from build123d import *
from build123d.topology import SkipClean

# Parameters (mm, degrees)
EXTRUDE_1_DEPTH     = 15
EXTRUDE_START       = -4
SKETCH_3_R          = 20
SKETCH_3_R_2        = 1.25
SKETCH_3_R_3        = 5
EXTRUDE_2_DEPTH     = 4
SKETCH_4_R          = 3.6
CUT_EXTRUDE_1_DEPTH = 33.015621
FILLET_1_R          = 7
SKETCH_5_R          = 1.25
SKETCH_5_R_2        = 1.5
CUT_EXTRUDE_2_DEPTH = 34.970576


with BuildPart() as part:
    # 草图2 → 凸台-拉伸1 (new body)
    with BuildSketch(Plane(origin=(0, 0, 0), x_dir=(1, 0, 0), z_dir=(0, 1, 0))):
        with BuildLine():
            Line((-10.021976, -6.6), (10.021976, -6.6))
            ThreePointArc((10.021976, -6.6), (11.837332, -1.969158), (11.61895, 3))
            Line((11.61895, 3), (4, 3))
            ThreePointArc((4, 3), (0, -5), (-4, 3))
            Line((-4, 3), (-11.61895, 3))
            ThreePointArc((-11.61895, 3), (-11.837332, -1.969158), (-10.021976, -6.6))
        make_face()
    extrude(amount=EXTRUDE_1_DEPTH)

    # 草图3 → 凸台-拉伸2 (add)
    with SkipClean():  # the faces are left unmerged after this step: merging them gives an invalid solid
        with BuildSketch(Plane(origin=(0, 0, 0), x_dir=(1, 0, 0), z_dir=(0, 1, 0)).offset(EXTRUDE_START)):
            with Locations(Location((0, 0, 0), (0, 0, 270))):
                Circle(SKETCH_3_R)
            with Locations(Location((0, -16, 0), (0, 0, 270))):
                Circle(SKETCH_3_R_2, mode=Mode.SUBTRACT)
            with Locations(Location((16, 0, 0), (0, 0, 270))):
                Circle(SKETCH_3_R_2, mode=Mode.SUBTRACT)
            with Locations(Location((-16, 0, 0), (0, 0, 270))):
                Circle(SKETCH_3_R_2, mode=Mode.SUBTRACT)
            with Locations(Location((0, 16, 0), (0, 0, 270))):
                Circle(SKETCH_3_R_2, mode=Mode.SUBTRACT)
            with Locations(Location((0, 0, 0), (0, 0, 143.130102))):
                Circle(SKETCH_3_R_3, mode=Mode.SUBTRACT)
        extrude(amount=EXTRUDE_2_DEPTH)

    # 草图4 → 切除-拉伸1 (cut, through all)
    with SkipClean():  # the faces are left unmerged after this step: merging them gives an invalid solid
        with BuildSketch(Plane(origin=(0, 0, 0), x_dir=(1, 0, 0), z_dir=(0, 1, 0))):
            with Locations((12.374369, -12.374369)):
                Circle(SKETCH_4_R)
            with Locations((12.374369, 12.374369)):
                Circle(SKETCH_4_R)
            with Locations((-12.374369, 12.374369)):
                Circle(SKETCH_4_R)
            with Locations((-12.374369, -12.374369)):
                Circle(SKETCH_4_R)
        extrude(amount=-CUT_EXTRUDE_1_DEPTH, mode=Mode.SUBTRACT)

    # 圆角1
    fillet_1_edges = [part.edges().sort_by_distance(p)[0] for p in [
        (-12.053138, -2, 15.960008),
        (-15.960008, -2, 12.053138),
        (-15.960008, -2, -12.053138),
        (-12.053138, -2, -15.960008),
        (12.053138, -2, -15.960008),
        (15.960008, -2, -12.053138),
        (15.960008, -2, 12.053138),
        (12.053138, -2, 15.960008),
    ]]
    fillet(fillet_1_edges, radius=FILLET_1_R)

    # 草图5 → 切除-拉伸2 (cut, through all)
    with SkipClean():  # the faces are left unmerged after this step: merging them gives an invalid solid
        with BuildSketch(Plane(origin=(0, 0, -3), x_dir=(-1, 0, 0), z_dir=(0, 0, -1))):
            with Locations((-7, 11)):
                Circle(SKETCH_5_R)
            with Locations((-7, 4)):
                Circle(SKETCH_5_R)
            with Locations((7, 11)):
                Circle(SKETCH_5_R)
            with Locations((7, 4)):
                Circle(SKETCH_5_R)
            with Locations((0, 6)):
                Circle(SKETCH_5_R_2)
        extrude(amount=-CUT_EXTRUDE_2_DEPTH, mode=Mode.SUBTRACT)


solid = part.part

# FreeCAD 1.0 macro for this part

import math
import FreeCAD as App
import Part
import Sketcher


def edges_at(feature, points):
    """Names of the edges that pass closest to the given points."""
    edges = feature.Shape.Edges
    near = lambda p: min(range(len(edges)), key=lambda i: edges[i].distToShape(Part.Vertex(*p))[0])
    return sorted({f"Edge{near(p) + 1}" for p in points})

doc = App.newDocument("Part")
body = doc.addObject("PartDesign::Body", "Body")

sketch1 = body.newObject("Sketcher::SketchObject", "Sketch")
sketch1.AttachmentSupport = (doc.getObject("XZ_Plane"), [""])
sketch1.MapMode = "FlatFace"
sketch1.addGeometry(Part.LineSegment(App.Vector(-10, 7, 0), App.Vector(10, 7, 0)), False)
sketch1.addGeometry(Part.ArcOfCircle(Part.Circle(App.Vector(0, 0, 0), App.Vector(0, 0, 1), 12), math.radians(-14), math.radians(33)), False)
sketch1.addGeometry(Part.LineSegment(App.Vector(12, -3, 0), App.Vector(4, -3, 0)), False)
sketch1.addGeometry(Part.ArcOfCircle(Part.Circle(App.Vector(0, 0, 0), App.Vector(0, 0, 1), 5), math.radians(-37), math.radians(217)), False)
sketch1.addGeometry(Part.LineSegment(App.Vector(-4, -3, 0), App.Vector(-12, -3, 0)), False)
sketch1.addGeometry(Part.ArcOfCircle(Part.Circle(App.Vector(0, 0, 0), App.Vector(0, 0, 1), 12), math.radians(147), math.radians(194)), False)
sketch1.addConstraint(Sketcher.Constraint("Coincident", 0, 2, 1, 2))
sketch1.addConstraint(Sketcher.Constraint("Coincident", 1, 1, 2, 1))
sketch1.addConstraint(Sketcher.Constraint("Coincident", 2, 2, 3, 1))
sketch1.addConstraint(Sketcher.Constraint("Coincident", 3, 2, 4, 1))
sketch1.addConstraint(Sketcher.Constraint("Coincident", 4, 2, 5, 2))
sketch1.addConstraint(Sketcher.Constraint("Coincident", 5, 1, 0, 1))
sketch1.addConstraint(Sketcher.Constraint("Horizontal", 0))
sketch1.addConstraint(Sketcher.Constraint("Horizontal", 2))
sketch1.addConstraint(Sketcher.Constraint("Horizontal", 4))
sketch1.addConstraint(Sketcher.Constraint("Coincident", 1, 3, -1, 1))
sketch1.addConstraint(Sketcher.Constraint("Coincident", 3, 3, -1, 1))
sketch1.addConstraint(Sketcher.Constraint("Coincident", 5, 3, -1, 1))
sketch1.addConstraint(Sketcher.Constraint("Equal", 1, 5))
sketch1.addConstraint(Sketcher.Constraint("Horizontal", 2, 2, 3, 2))
sketch1.addConstraint(Sketcher.Constraint("Radius", 3, 5.0))
sketch1.addConstraint(Sketcher.Constraint("DistanceY", 1, 1, -1, 1, 3.0))
sketch1.addConstraint(Sketcher.Constraint("DistanceY", -1, 1, 0, 2, 6.6))
sketch1.addConstraint(Sketcher.Constraint("Radius", 1, 11.999995))
pad1 = body.newObject("PartDesign::Pad", "Pad")
pad1.Profile = sketch1
pad1.Length = 15
pad1.Reversed = True

sketch2 = body.newObject("Sketcher::SketchObject", "Sketch001")
sketch2.AttachmentSupport = (doc.getObject("XZ_Plane"), [""])
sketch2.MapMode = "FlatFace"
sketch2.AttachmentOffset = App.Placement(App.Vector(0, 0, 4), App.Rotation())
sketch2.addGeometry(Part.Circle(App.Vector(0, 0, 0), App.Vector(0, 0, 1), 20), False)
sketch2.addGeometry(Part.Circle(App.Vector(0, -16, 0), App.Vector(0, 0, 1), 1.2), False)
sketch2.addGeometry(Part.Circle(App.Vector(-16, 0, 0), App.Vector(0, 0, 1), 1.2), False)
sketch2.addGeometry(Part.Circle(App.Vector(16, 0, 0), App.Vector(0, 0, 1), 1.2), False)
sketch2.addGeometry(Part.Circle(App.Vector(0, 0, 0), App.Vector(0, 0, 1), 5), False)
sketch2.addGeometry(Part.Circle(App.Vector(0, 16, 0), App.Vector(0, 0, 1), 1.2), False)
sketch2.addConstraint(Sketcher.Constraint("Coincident", 0, 3, -1, 1))
sketch2.addConstraint(Sketcher.Constraint("Coincident", 4, 3, -1, 1))
sketch2.addConstraint(Sketcher.Constraint("Equal", 1, 2))
sketch2.addConstraint(Sketcher.Constraint("Equal", 2, 3))
sketch2.addConstraint(Sketcher.Constraint("Equal", 3, 5))
sketch2.addConstraint(Sketcher.Constraint("Symmetric", 2, 3, 3, 3, -1, 1))
sketch2.addConstraint(Sketcher.Constraint("Symmetric", 1, 3, 5, 3, -1, 1))
sketch2.addConstraint(Sketcher.Constraint("PointOnObject", 1, 3, -2))
sketch2.addConstraint(Sketcher.Constraint("PointOnObject", 2, 3, -1))
sketch2.addConstraint(Sketcher.Constraint("Diameter", 0, 40.0))
sketch2.addConstraint(Sketcher.Constraint("Diameter", 4, 10.0))
sketch2.addConstraint(Sketcher.Constraint("Diameter", 1, 2.5))
sketch2.addConstraint(Sketcher.Constraint("DistanceY", 1, 3, -1, 1, 16.0))
sketch2.addConstraint(Sketcher.Constraint("DistanceX", 2, 3, -1, 1, 16.0))
pad2 = body.newObject("PartDesign::Pad", "Pad001")
pad2.Profile = sketch2
pad2.Length = 4
pad2.Reversed = True

sketch3 = body.newObject("Sketcher::SketchObject", "Sketch002")
sketch3.AttachmentSupport = (doc.getObject("XZ_Plane"), [""])
sketch3.MapMode = "FlatFace"
sketch3.addGeometry(Part.Circle(App.Vector(12.4, 12.4, 0), App.Vector(0, 0, 1), 3.6), False)
sketch3.addGeometry(Part.Circle(App.Vector(12.4, -12.4, 0), App.Vector(0, 0, 1), 3.6), False)
sketch3.addGeometry(Part.Circle(App.Vector(-12.4, -12.4, 0), App.Vector(0, 0, 1), 3.6), False)
sketch3.addGeometry(Part.Circle(App.Vector(-12.4, 12.4, 0), App.Vector(0, 0, 1), 3.6), False)
sketch3.addConstraint(Sketcher.Constraint("Equal", 0, 1))
sketch3.addConstraint(Sketcher.Constraint("Equal", 1, 2))
sketch3.addConstraint(Sketcher.Constraint("Equal", 2, 3))
sketch3.addConstraint(Sketcher.Constraint("Symmetric", 0, 3, 2, 3, -1, 1))
sketch3.addConstraint(Sketcher.Constraint("Symmetric", 1, 3, 3, 3, -1, 1))
sketch3.addConstraint(Sketcher.Constraint("Symmetric", 1, 3, 2, 3, -2))
sketch3.addConstraint(Sketcher.Constraint("Diameter", 0, 7.2))
sketch3.addConstraint(Sketcher.Constraint("DistanceX", -1, 1, 0, 3, 12.374369))
sketch3.addConstraint(Sketcher.Constraint("DistanceY", -1, 1, 0, 3, 12.374369))
pocket1 = body.newObject("PartDesign::Pocket", "Pocket")
pocket1.Profile = sketch3
pocket1.Type = "ThroughAll"
pocket1.Reversed = True
doc.recompute()

fillet = body.newObject("PartDesign::Fillet", "Fillet")
fillet.Base = (pocket1, edges_at(pocket1, [
    (-12.053, -2, 15.96),
    (-15.96, -2, 12.053),
    (-15.96, -2, -12.053),
    (-12.053, -2, -15.96),
    (12.053, -2, -15.96),
    (15.96, -2, -12.053),
    (15.96, -2, 12.053),
    (12.053, -2, 15.96),
]))
fillet.Radius = 7

sketch4 = body.newObject("Sketcher::SketchObject", "Sketch003")
sketch4.AttachmentSupport = (doc.getObject("XY_Plane"), [""])
sketch4.MapMode = "FlatFace"
sketch4.AttachmentOffset = App.Placement(App.Vector(0, 0, -3), App.Rotation())
sketch4.addGeometry(Part.Circle(App.Vector(7, 11, 0), App.Vector(0, 0, 1), 1.2), False)
sketch4.addGeometry(Part.Circle(App.Vector(7, 4, 0), App.Vector(0, 0, 1), 1.2), False)
sketch4.addGeometry(Part.Circle(App.Vector(-7, 11, 0), App.Vector(0, 0, 1), 1.2), False)
sketch4.addGeometry(Part.Circle(App.Vector(-7, 4, 0), App.Vector(0, 0, 1), 1.2), False)
sketch4.addGeometry(Part.Circle(App.Vector(0, 6, 0), App.Vector(0, 0, 1), 1.5), False)
sketch4.addConstraint(Sketcher.Constraint("Equal", 0, 1))
sketch4.addConstraint(Sketcher.Constraint("Equal", 1, 2))
sketch4.addConstraint(Sketcher.Constraint("Equal", 2, 3))
sketch4.addConstraint(Sketcher.Constraint("Symmetric", 0, 3, 2, 3, -2))
sketch4.addConstraint(Sketcher.Constraint("Symmetric", 1, 3, 3, 3, -2))
sketch4.addConstraint(Sketcher.Constraint("PointOnObject", 4, 3, -2))
sketch4.addConstraint(Sketcher.Constraint("Vertical", 0, 3, 1, 3))
sketch4.addConstraint(Sketcher.Constraint("Diameter", 4, 3.0))
sketch4.addConstraint(Sketcher.Constraint("Diameter", 0, 2.5))
sketch4.addConstraint(Sketcher.Constraint("DistanceX", -1, 1, 0, 3, 7.0))
sketch4.addConstraint(Sketcher.Constraint("DistanceY", -1, 1, 0, 3, 11.0))
sketch4.addConstraint(Sketcher.Constraint("DistanceY", -1, 1, 1, 3, 4.0))
sketch4.addConstraint(Sketcher.Constraint("DistanceY", -1, 1, 4, 3, 6.0))
pocket2 = body.newObject("PartDesign::Pocket", "Pocket001")
pocket2.Profile = sketch4
pocket2.Type = "ThroughAll"
pocket2.Reversed = True

doc.recompute()
